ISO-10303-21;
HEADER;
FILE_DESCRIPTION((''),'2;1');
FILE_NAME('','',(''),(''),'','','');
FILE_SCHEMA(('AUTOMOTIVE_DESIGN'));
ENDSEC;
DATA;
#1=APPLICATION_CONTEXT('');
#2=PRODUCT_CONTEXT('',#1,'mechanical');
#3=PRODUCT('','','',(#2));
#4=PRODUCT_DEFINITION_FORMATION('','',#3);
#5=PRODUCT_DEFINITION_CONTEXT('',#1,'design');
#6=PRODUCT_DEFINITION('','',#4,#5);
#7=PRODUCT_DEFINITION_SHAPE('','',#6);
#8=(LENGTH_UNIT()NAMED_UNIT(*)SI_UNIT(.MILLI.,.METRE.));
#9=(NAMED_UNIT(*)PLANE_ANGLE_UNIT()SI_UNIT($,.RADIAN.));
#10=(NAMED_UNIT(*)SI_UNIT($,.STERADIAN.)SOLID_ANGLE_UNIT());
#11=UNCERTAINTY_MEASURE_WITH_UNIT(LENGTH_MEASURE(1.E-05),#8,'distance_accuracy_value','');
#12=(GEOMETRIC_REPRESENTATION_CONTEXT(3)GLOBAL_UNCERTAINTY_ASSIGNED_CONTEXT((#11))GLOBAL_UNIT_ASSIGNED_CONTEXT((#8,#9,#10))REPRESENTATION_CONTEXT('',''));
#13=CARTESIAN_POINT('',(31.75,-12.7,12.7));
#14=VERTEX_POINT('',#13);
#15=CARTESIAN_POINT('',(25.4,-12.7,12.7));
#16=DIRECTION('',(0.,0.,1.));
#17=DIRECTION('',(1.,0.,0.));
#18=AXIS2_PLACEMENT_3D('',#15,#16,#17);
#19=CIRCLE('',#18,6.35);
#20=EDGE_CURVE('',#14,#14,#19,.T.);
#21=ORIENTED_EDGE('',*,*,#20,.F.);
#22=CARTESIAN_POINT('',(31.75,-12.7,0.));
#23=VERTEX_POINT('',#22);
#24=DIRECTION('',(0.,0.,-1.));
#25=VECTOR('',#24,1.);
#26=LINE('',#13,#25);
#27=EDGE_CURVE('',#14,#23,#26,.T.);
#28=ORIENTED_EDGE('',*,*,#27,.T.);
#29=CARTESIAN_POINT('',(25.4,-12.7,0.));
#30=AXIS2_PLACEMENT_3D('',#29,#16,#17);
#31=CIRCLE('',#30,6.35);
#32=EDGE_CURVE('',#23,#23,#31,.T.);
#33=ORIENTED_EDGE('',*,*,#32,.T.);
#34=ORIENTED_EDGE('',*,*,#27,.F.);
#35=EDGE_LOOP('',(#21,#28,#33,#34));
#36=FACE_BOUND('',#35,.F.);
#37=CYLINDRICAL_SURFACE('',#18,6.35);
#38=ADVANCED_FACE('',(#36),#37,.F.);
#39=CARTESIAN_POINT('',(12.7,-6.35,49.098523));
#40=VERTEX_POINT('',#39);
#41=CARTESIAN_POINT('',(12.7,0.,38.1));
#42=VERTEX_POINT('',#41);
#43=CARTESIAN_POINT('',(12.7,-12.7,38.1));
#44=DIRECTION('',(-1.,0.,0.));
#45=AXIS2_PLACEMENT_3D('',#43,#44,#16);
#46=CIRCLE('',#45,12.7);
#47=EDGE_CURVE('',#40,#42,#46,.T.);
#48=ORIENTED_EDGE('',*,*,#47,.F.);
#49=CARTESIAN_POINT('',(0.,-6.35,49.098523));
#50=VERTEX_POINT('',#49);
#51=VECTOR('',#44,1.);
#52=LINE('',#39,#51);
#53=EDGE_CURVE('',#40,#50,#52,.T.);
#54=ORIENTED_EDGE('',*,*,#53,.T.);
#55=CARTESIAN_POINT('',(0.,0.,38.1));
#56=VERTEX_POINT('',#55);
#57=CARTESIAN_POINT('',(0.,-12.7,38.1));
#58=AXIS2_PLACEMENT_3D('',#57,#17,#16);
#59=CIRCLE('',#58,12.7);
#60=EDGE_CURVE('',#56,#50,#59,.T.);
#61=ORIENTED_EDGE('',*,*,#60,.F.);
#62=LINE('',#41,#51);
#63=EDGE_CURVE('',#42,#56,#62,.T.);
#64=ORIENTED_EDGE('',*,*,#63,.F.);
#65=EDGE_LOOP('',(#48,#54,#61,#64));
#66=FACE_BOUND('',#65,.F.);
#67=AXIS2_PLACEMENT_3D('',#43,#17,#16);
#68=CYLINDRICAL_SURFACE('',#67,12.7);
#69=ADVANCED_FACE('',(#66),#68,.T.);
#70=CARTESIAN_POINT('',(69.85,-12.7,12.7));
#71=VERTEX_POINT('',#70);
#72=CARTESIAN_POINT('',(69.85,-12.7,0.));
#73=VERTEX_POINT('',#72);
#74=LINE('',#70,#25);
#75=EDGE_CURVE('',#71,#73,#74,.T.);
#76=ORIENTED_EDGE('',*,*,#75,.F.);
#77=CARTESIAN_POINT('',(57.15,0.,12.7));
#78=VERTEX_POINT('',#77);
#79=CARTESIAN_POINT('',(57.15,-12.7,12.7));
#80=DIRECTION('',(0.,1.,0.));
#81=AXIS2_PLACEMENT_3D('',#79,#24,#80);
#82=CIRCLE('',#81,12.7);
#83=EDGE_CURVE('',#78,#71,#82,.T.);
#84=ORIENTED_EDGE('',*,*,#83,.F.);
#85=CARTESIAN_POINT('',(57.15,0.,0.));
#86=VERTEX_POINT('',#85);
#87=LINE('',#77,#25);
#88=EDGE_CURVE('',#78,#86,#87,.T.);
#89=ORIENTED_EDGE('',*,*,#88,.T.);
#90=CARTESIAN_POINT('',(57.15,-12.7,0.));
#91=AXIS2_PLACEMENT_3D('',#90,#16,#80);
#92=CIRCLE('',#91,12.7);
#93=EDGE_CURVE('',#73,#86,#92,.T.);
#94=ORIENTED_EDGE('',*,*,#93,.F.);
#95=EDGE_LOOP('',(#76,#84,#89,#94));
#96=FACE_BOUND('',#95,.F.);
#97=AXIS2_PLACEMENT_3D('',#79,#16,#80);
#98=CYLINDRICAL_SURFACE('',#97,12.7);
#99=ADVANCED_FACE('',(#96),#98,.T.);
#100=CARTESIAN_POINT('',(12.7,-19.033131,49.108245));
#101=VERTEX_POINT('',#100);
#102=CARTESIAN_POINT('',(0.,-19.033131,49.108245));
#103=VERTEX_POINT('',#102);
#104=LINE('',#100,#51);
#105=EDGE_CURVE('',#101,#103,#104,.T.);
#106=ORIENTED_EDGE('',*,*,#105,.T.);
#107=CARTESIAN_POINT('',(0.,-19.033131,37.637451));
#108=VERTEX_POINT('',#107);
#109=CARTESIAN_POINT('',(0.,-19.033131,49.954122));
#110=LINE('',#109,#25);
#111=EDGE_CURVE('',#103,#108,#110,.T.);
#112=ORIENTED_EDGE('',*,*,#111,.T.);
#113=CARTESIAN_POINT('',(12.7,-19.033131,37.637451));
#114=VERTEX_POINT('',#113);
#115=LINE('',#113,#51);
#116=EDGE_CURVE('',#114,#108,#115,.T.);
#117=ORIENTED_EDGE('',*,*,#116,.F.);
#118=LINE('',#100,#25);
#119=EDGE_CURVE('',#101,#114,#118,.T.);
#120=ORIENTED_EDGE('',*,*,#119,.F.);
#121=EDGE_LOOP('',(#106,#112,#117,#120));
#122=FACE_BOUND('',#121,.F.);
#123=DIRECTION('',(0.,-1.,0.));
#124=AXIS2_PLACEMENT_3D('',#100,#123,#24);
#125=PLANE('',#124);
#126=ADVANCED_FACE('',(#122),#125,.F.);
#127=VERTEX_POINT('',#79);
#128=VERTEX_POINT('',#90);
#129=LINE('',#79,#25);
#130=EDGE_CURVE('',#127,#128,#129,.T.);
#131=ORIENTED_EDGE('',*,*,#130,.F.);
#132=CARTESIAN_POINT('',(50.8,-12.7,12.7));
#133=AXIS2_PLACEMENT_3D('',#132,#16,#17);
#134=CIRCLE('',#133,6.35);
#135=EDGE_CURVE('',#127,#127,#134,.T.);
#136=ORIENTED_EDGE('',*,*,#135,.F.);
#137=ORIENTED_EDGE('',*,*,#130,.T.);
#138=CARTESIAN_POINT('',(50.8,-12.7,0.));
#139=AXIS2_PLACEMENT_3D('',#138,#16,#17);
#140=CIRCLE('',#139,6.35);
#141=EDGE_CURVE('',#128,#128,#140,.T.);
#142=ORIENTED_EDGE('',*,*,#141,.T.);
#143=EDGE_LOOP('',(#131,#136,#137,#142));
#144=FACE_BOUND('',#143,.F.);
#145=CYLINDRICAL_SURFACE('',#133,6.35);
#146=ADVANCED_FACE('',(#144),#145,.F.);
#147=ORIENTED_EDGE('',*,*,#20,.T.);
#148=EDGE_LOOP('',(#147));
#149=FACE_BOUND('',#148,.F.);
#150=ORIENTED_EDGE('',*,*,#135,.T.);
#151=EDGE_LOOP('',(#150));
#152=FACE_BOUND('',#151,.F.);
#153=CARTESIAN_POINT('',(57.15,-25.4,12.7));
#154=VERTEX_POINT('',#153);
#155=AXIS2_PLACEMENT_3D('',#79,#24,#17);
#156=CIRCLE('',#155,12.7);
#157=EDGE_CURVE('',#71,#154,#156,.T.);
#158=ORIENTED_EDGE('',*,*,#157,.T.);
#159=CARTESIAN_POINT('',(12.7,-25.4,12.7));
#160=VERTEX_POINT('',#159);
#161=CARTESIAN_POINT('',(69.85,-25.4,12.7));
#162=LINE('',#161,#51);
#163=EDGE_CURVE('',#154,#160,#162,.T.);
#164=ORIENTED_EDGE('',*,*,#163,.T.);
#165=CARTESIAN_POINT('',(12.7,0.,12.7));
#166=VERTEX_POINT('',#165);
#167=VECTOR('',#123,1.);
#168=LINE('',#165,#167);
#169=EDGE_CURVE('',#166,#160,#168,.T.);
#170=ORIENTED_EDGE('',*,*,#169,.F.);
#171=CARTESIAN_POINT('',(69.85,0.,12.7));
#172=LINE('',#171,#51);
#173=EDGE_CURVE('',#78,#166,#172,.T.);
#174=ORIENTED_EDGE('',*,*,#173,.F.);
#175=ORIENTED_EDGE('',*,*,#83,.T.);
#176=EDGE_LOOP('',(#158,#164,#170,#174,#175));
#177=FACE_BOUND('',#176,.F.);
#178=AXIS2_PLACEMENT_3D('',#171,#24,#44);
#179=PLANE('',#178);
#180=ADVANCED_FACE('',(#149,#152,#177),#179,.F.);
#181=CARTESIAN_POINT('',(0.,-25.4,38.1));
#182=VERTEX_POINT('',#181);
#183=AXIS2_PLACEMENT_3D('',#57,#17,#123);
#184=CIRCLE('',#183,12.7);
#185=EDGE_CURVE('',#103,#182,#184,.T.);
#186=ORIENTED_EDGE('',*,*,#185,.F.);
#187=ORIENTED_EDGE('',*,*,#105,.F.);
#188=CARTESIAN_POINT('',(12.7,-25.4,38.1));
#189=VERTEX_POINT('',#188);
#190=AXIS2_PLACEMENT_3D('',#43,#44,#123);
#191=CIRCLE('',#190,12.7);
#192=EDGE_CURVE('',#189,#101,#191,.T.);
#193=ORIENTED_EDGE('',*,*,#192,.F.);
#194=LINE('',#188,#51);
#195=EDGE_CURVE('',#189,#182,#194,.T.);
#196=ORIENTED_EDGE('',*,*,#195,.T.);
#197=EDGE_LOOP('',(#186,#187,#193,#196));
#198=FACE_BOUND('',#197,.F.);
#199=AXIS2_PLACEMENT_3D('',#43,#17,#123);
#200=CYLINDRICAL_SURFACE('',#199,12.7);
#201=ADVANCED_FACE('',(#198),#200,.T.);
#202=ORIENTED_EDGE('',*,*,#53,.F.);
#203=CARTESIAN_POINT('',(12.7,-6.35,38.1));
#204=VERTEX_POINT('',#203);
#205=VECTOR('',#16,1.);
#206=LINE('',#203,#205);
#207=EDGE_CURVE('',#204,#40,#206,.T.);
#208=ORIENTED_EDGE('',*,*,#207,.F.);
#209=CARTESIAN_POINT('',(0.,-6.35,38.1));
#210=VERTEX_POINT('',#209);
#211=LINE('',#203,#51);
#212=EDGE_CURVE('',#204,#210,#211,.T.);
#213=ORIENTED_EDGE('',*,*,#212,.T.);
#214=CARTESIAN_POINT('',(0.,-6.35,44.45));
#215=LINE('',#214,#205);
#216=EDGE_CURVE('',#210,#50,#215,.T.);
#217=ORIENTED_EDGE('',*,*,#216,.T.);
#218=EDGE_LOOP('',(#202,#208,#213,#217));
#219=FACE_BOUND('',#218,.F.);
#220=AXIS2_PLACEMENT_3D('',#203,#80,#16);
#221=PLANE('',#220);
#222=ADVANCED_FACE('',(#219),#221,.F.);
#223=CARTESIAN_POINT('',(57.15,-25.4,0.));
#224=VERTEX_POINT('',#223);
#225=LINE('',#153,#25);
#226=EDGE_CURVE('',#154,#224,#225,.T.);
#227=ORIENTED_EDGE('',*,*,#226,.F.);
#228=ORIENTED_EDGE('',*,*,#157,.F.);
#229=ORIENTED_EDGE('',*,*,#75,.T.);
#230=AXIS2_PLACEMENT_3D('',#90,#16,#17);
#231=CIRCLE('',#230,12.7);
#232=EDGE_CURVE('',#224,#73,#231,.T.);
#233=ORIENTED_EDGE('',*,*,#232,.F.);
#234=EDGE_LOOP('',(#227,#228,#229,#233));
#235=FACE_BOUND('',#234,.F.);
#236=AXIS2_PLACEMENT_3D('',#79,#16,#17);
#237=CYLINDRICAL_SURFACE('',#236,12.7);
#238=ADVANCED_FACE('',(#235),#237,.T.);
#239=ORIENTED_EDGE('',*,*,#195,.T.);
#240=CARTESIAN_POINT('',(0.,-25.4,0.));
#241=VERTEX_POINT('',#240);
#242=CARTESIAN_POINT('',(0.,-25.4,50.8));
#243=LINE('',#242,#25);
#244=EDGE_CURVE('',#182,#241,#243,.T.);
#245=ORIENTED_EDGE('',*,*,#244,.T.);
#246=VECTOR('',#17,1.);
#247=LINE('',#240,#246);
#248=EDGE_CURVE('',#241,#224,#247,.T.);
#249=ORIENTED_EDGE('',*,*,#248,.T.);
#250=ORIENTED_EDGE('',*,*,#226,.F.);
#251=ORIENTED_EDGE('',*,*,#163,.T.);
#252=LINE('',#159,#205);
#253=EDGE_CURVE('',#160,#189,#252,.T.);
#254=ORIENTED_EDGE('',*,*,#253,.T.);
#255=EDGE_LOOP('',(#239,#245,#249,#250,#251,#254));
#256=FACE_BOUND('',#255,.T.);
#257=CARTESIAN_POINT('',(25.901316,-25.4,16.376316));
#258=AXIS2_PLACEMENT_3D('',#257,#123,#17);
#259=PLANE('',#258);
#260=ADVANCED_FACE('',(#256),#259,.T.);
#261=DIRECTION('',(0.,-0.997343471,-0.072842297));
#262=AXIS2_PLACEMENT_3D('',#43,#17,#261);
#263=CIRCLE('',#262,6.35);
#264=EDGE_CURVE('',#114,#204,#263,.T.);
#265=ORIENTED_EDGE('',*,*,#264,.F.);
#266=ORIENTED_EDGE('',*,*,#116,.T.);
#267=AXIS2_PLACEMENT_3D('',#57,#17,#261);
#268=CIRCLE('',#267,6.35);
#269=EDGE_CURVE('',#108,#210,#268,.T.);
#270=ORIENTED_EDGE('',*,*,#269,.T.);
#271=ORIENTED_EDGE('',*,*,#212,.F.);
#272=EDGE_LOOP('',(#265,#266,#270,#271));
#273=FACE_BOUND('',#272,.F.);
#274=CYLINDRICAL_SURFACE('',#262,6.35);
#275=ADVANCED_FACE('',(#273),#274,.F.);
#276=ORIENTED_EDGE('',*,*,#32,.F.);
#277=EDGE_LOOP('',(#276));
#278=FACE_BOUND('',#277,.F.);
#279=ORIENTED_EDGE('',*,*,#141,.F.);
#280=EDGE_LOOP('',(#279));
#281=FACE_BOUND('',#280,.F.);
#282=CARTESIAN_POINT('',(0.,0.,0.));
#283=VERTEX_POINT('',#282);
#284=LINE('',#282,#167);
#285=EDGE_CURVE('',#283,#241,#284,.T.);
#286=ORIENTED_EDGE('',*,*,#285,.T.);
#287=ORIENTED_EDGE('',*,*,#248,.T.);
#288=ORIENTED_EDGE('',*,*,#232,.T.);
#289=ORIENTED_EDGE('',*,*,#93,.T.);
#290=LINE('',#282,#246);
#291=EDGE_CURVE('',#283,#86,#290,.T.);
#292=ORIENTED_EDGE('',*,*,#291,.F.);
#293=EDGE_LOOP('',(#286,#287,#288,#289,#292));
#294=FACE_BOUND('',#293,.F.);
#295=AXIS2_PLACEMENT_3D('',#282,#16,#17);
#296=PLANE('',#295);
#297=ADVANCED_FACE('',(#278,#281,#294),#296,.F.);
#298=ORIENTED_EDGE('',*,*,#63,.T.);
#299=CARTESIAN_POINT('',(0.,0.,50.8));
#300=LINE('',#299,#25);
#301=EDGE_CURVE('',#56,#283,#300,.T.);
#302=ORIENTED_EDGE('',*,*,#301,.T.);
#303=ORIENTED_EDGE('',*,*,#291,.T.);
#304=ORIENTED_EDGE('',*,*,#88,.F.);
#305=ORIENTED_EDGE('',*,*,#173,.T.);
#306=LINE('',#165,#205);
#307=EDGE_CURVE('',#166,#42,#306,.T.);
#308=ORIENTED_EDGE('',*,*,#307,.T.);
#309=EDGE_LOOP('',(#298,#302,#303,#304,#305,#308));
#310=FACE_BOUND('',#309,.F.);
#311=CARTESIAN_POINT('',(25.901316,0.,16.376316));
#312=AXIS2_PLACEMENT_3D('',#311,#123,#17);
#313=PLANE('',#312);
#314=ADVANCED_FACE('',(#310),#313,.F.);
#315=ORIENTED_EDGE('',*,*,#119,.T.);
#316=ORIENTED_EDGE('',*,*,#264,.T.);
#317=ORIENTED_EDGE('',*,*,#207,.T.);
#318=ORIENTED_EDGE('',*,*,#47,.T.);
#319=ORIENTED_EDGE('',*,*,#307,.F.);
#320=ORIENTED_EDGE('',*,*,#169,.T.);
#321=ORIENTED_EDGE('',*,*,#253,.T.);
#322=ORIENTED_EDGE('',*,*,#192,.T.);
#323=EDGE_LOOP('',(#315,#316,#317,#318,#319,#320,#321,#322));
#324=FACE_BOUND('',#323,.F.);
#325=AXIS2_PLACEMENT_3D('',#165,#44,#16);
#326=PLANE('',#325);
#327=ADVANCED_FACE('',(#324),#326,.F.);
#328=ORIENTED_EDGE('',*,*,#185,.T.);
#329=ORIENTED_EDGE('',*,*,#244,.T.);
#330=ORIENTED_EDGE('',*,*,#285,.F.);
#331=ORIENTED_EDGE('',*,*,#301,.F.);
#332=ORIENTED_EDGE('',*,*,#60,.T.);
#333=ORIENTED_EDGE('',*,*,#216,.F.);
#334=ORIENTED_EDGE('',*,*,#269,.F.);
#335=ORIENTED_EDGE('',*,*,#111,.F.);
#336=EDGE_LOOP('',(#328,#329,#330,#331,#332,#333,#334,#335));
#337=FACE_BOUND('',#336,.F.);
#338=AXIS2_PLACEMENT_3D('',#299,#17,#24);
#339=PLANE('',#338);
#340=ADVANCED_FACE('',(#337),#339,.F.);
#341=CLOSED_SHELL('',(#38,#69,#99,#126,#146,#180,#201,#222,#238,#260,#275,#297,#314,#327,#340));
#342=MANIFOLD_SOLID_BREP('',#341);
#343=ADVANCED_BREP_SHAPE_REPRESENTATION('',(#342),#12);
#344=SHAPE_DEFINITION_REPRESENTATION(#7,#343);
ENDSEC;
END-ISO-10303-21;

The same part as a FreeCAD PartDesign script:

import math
import FreeCAD as App
import Part
import Sketcher
Q = App.Units.Quantity

doc = App.newDocument("Part")
body = doc.addObject("PartDesign::Body", "Body")

# Sketch on XZ plane
sketch1 = body.newObject("Sketcher::SketchObject", "Sketch")
sketch1.AttachmentSupport = (doc.getObject("XZ_Plane"), [""])
sketch1.MapMode = "FlatFace"
sketch1.addGeometry([
    Part.LineSegment(App.Vector(13, 51, 0), App.Vector(0, 51, 0)),  # 0
    Part.LineSegment(App.Vector(0, 51, 0), App.Vector(0, 0, 0)),  # 1
    Part.LineSegment(App.Vector(0, 0, 0), App.Vector(70, 0, 0)),  # 2
    Part.LineSegment(App.Vector(70, 0, 0), App.Vector(70, 13, 0)),  # 3
    Part.LineSegment(App.Vector(70, 13, 0), App.Vector(13, 13, 0)),  # 4
    Part.LineSegment(App.Vector(13, 13, 0), App.Vector(13, 51, 0)),  # 5
], False)
sketch1.addConstraint([
    Sketcher.Constraint("Coincident", 0, 2, 1, 1),
    Sketcher.Constraint("Coincident", 1, 2, 2, 1),
    Sketcher.Constraint("Coincident", 2, 2, 3, 1),
    Sketcher.Constraint("Coincident", 3, 2, 4, 1),
    Sketcher.Constraint("Coincident", 4, 2, 5, 1),
    Sketcher.Constraint("Coincident", 5, 2, 0, 1),
    Sketcher.Constraint("Horizontal", 0),
    Sketcher.Constraint("Vertical", 1),
    Sketcher.Constraint("Horizontal", 2),
    Sketcher.Constraint("Vertical", 3),
    Sketcher.Constraint("Horizontal", 4),
    Sketcher.Constraint("Vertical", 5),
    Sketcher.Constraint("Coincident", 1, 2, -1, 1),
    Sketcher.Constraint("Equal", 0, 3),
    Sketcher.Constraint("DistanceY", 1, 2, 1, 1, Q("2 in")),
    Sketcher.Constraint("DistanceX", 0, 2, 0, 1, Q("0.5 in")),
    Sketcher.Constraint("DistanceX", 2, 1, 2, 2, Q("2.75 in")),
])
pad1 = body.newObject("PartDesign::Pad", "Pad")
pad1.Profile = sketch1
pad1.Length = Q("1 in")

# Sketch on XY plane
sketch2 = body.newObject("Sketcher::SketchObject", "Sketch001")
sketch2.AttachmentSupport = (doc.getObject("XY_Plane"), [""])
sketch2.MapMode = "FlatFace"
sketch2.AttachmentOffset = App.Placement(App.Vector(0, 0, 0.5 * 25.4), App.Rotation())
sketch2.addGeometry([
    Part.Circle(App.Vector(25, -13, 0), App.Vector(0, 0, 1), 6),  # 0
    Part.LineSegment(App.Vector(70, -25, 0), App.Vector(70, -13, 0)),  # 1
    Part.ArcOfCircle(Part.Circle(App.Vector(57, -13, 0), App.Vector(0, 0, 1), 13), math.radians(-90), math.radians(0)),  # 2
    Part.LineSegment(App.Vector(57, -25, 0), App.Vector(70, -25, 0)),  # 3
    Part.Circle(App.Vector(51, -13, 0), App.Vector(0, 0, 1), 6),  # 4
    Part.LineSegment(App.Vector(70, 0, 0), App.Vector(57, 0, 0)),  # 5
    Part.ArcOfCircle(Part.Circle(App.Vector(57, -13, 0), App.Vector(0, 0, 1), 13), math.radians(0), math.radians(90)),  # 6
    Part.LineSegment(App.Vector(70, -13, 0), App.Vector(70, 0, 0)),  # 7
], False)
sketch2.addConstraint([
    Sketcher.Constraint("Tangent", 1, 2, 2, 2),
    Sketcher.Constraint("Tangent", 2, 1, 3, 1),
    Sketcher.Constraint("Coincident", 3, 2, 1, 1),
    Sketcher.Constraint("Tangent", 5, 2, 6, 2),
    Sketcher.Constraint("Tangent", 6, 1, 7, 1),
    Sketcher.Constraint("Coincident", 7, 2, 5, 1),
    Sketcher.Constraint("Vertical", 1),
    Sketcher.Constraint("Horizontal", 3),
    Sketcher.Constraint("Horizontal", 5),
    Sketcher.Constraint("Vertical", 7),
    Sketcher.Constraint("Coincident", 6, 3, 2, 3),
    Sketcher.Constraint("Equal", 0, 4),
    Sketcher.Constraint("Equal", 2, 6),
    Sketcher.Constraint("PointOnObject", 5, 2, -1),
    Sketcher.Constraint("Horizontal", 0, 3, 2, 3),
    Sketcher.Constraint("Horizontal", 2, 3, 4, 3),
    Sketcher.Constraint("Diameter", 0, Q("0.5 in")),
    Sketcher.Constraint("Radius", 2, Q("0.5 in")),
    Sketcher.Constraint("DistanceX", -1, 1, 0, 3, Q("1 in")),
    Sketcher.Constraint("DistanceX", -1, 1, 4, 3, Q("2 in")),
    Sketcher.Constraint("DistanceX", -1, 1, 2, 3, Q("2.25 in")),
])
pocket1 = body.newObject("PartDesign::Pocket", "Pocket")
pocket1.Profile = sketch2
pocket1.Length = Q("1 in")

# Sketch on YZ plane
sketch3 = body.newObject("Sketcher::SketchObject", "Sketch002")
sketch3.AttachmentSupport = (doc.getObject("YZ_Plane"), [""])
sketch3.MapMode = "FlatFace"
sketch3.AttachmentOffset = App.Placement(App.Vector(0, 0, 0.5 * 25.4), App.Rotation())
sketch3.addGeometry([
    Part.LineSegment(App.Vector(0, 38, 0), App.Vector(0, 51, 0)),  # 0
    Part.LineSegment(App.Vector(0, 51, 0), App.Vector(-13, 51, 0)),  # 1
    Part.ArcOfCircle(Part.Circle(App.Vector(-13, 38, 0), App.Vector(0, 0, 1), 13), math.radians(0), math.radians(90)),  # 2
    Part.ArcOfCircle(Part.Circle(App.Vector(-13, 38, 0), App.Vector(0, 0, 1), 13), math.radians(90), math.radians(180)),  # 3
    Part.LineSegment(App.Vector(-13, 51, 0), App.Vector(-25, 51, 0)),  # 4
    Part.LineSegment(App.Vector(-25, 51, 0), App.Vector(-25, 38, 0)),  # 5
], False)
sketch3.addConstraint([
    Sketcher.Constraint("Coincident", 0, 2, 1, 1),
    Sketcher.Constraint("Tangent", 1, 2, 2, 2),
    Sketcher.Constraint("Tangent", 2, 1, 0, 1),
    Sketcher.Constraint("Tangent", 3, 1, 4, 1),
    Sketcher.Constraint("Coincident", 4, 2, 5, 1),
    Sketcher.Constraint("Tangent", 5, 2, 3, 2),
    Sketcher.Constraint("Vertical", 0),
    Sketcher.Constraint("Horizontal", 1),
    Sketcher.Constraint("Horizontal", 4),
    Sketcher.Constraint("Vertical", 5),
    Sketcher.Constraint("Coincident", 3, 3, 2, 3),
    Sketcher.Constraint("Equal", 2, 3),
    Sketcher.Constraint("PointOnObject", 0, 2, -2),
    Sketcher.Constraint("Radius", 2, Q("0.5 in")),
    Sketcher.Constraint("DistanceY", -1, 1, 0, 2, Q("2 in")),
])
pocket2 = body.newObject("PartDesign::Pocket", "Pocket001")
pocket2.Profile = sketch3
pocket2.Length = Q("1 in")

# Sketch on YZ plane
sketch4 = body.newObject("Sketcher::SketchObject", "Sketch003")
sketch4.AttachmentSupport = (doc.getObject("YZ_Plane"), [""])
sketch4.MapMode = "FlatFace"
sketch4.AttachmentOffset = App.Placement(App.Vector(0, 0, 0.5 * 25.4), App.Rotation())
sketch4.addGeometry([
    Part.ArcOfCircle(Part.Circle(App.Vector(-13, 38, 0), App.Vector(0, 0, 1), 6), math.radians(-176), math.radians(0)),
    Part.LineSegment(App.Vector(-6, 38, 0), App.Vector(-6, 49, 0)),
    Part.ArcOfCircle(Part.Circle(App.Vector(-13, 38, 0), App.Vector(0, 0, 1), 13), math.radians(60), math.radians(120)),
    Part.LineSegment(App.Vector(-19, 49, 0), App.Vector(-19, 38, 0)),
], False)
sketch4.addConstraint([
    Sketcher.Constraint("Tangent", 0, 2, 1, 1),
    Sketcher.Constraint("Coincident", 1, 2, 2, 1),
    Sketcher.Constraint("Coincident", 2, 2, 3, 1),
    Sketcher.Constraint("Coincident", 3, 2, 0, 1),
    Sketcher.Constraint("Vertical", 1),
    Sketcher.Constraint("Vertical", 3),
    Sketcher.Constraint("Coincident", 2, 3, 0, 3),
    Sketcher.Constraint("Radius", 2, Q("0.5 in")),
    Sketcher.Constraint("Radius", 0, Q("0.25 in")),
    Sketcher.Constraint("DistanceX", 0, 3, -1, 1, Q("0.5 in")),
    Sketcher.Constraint("DistanceY", -1, 1, 0, 3, Q("1.5 in")),
    Sketcher.Constraint("DistanceY", 3, 2, 3, 1, Q("11.470793 mm")),
])
pocket3 = body.newObject("PartDesign::Pocket", "Pocket002")
pocket3.Profile = sketch4
pocket3.Length = Q("1 in")

doc.recompute()
